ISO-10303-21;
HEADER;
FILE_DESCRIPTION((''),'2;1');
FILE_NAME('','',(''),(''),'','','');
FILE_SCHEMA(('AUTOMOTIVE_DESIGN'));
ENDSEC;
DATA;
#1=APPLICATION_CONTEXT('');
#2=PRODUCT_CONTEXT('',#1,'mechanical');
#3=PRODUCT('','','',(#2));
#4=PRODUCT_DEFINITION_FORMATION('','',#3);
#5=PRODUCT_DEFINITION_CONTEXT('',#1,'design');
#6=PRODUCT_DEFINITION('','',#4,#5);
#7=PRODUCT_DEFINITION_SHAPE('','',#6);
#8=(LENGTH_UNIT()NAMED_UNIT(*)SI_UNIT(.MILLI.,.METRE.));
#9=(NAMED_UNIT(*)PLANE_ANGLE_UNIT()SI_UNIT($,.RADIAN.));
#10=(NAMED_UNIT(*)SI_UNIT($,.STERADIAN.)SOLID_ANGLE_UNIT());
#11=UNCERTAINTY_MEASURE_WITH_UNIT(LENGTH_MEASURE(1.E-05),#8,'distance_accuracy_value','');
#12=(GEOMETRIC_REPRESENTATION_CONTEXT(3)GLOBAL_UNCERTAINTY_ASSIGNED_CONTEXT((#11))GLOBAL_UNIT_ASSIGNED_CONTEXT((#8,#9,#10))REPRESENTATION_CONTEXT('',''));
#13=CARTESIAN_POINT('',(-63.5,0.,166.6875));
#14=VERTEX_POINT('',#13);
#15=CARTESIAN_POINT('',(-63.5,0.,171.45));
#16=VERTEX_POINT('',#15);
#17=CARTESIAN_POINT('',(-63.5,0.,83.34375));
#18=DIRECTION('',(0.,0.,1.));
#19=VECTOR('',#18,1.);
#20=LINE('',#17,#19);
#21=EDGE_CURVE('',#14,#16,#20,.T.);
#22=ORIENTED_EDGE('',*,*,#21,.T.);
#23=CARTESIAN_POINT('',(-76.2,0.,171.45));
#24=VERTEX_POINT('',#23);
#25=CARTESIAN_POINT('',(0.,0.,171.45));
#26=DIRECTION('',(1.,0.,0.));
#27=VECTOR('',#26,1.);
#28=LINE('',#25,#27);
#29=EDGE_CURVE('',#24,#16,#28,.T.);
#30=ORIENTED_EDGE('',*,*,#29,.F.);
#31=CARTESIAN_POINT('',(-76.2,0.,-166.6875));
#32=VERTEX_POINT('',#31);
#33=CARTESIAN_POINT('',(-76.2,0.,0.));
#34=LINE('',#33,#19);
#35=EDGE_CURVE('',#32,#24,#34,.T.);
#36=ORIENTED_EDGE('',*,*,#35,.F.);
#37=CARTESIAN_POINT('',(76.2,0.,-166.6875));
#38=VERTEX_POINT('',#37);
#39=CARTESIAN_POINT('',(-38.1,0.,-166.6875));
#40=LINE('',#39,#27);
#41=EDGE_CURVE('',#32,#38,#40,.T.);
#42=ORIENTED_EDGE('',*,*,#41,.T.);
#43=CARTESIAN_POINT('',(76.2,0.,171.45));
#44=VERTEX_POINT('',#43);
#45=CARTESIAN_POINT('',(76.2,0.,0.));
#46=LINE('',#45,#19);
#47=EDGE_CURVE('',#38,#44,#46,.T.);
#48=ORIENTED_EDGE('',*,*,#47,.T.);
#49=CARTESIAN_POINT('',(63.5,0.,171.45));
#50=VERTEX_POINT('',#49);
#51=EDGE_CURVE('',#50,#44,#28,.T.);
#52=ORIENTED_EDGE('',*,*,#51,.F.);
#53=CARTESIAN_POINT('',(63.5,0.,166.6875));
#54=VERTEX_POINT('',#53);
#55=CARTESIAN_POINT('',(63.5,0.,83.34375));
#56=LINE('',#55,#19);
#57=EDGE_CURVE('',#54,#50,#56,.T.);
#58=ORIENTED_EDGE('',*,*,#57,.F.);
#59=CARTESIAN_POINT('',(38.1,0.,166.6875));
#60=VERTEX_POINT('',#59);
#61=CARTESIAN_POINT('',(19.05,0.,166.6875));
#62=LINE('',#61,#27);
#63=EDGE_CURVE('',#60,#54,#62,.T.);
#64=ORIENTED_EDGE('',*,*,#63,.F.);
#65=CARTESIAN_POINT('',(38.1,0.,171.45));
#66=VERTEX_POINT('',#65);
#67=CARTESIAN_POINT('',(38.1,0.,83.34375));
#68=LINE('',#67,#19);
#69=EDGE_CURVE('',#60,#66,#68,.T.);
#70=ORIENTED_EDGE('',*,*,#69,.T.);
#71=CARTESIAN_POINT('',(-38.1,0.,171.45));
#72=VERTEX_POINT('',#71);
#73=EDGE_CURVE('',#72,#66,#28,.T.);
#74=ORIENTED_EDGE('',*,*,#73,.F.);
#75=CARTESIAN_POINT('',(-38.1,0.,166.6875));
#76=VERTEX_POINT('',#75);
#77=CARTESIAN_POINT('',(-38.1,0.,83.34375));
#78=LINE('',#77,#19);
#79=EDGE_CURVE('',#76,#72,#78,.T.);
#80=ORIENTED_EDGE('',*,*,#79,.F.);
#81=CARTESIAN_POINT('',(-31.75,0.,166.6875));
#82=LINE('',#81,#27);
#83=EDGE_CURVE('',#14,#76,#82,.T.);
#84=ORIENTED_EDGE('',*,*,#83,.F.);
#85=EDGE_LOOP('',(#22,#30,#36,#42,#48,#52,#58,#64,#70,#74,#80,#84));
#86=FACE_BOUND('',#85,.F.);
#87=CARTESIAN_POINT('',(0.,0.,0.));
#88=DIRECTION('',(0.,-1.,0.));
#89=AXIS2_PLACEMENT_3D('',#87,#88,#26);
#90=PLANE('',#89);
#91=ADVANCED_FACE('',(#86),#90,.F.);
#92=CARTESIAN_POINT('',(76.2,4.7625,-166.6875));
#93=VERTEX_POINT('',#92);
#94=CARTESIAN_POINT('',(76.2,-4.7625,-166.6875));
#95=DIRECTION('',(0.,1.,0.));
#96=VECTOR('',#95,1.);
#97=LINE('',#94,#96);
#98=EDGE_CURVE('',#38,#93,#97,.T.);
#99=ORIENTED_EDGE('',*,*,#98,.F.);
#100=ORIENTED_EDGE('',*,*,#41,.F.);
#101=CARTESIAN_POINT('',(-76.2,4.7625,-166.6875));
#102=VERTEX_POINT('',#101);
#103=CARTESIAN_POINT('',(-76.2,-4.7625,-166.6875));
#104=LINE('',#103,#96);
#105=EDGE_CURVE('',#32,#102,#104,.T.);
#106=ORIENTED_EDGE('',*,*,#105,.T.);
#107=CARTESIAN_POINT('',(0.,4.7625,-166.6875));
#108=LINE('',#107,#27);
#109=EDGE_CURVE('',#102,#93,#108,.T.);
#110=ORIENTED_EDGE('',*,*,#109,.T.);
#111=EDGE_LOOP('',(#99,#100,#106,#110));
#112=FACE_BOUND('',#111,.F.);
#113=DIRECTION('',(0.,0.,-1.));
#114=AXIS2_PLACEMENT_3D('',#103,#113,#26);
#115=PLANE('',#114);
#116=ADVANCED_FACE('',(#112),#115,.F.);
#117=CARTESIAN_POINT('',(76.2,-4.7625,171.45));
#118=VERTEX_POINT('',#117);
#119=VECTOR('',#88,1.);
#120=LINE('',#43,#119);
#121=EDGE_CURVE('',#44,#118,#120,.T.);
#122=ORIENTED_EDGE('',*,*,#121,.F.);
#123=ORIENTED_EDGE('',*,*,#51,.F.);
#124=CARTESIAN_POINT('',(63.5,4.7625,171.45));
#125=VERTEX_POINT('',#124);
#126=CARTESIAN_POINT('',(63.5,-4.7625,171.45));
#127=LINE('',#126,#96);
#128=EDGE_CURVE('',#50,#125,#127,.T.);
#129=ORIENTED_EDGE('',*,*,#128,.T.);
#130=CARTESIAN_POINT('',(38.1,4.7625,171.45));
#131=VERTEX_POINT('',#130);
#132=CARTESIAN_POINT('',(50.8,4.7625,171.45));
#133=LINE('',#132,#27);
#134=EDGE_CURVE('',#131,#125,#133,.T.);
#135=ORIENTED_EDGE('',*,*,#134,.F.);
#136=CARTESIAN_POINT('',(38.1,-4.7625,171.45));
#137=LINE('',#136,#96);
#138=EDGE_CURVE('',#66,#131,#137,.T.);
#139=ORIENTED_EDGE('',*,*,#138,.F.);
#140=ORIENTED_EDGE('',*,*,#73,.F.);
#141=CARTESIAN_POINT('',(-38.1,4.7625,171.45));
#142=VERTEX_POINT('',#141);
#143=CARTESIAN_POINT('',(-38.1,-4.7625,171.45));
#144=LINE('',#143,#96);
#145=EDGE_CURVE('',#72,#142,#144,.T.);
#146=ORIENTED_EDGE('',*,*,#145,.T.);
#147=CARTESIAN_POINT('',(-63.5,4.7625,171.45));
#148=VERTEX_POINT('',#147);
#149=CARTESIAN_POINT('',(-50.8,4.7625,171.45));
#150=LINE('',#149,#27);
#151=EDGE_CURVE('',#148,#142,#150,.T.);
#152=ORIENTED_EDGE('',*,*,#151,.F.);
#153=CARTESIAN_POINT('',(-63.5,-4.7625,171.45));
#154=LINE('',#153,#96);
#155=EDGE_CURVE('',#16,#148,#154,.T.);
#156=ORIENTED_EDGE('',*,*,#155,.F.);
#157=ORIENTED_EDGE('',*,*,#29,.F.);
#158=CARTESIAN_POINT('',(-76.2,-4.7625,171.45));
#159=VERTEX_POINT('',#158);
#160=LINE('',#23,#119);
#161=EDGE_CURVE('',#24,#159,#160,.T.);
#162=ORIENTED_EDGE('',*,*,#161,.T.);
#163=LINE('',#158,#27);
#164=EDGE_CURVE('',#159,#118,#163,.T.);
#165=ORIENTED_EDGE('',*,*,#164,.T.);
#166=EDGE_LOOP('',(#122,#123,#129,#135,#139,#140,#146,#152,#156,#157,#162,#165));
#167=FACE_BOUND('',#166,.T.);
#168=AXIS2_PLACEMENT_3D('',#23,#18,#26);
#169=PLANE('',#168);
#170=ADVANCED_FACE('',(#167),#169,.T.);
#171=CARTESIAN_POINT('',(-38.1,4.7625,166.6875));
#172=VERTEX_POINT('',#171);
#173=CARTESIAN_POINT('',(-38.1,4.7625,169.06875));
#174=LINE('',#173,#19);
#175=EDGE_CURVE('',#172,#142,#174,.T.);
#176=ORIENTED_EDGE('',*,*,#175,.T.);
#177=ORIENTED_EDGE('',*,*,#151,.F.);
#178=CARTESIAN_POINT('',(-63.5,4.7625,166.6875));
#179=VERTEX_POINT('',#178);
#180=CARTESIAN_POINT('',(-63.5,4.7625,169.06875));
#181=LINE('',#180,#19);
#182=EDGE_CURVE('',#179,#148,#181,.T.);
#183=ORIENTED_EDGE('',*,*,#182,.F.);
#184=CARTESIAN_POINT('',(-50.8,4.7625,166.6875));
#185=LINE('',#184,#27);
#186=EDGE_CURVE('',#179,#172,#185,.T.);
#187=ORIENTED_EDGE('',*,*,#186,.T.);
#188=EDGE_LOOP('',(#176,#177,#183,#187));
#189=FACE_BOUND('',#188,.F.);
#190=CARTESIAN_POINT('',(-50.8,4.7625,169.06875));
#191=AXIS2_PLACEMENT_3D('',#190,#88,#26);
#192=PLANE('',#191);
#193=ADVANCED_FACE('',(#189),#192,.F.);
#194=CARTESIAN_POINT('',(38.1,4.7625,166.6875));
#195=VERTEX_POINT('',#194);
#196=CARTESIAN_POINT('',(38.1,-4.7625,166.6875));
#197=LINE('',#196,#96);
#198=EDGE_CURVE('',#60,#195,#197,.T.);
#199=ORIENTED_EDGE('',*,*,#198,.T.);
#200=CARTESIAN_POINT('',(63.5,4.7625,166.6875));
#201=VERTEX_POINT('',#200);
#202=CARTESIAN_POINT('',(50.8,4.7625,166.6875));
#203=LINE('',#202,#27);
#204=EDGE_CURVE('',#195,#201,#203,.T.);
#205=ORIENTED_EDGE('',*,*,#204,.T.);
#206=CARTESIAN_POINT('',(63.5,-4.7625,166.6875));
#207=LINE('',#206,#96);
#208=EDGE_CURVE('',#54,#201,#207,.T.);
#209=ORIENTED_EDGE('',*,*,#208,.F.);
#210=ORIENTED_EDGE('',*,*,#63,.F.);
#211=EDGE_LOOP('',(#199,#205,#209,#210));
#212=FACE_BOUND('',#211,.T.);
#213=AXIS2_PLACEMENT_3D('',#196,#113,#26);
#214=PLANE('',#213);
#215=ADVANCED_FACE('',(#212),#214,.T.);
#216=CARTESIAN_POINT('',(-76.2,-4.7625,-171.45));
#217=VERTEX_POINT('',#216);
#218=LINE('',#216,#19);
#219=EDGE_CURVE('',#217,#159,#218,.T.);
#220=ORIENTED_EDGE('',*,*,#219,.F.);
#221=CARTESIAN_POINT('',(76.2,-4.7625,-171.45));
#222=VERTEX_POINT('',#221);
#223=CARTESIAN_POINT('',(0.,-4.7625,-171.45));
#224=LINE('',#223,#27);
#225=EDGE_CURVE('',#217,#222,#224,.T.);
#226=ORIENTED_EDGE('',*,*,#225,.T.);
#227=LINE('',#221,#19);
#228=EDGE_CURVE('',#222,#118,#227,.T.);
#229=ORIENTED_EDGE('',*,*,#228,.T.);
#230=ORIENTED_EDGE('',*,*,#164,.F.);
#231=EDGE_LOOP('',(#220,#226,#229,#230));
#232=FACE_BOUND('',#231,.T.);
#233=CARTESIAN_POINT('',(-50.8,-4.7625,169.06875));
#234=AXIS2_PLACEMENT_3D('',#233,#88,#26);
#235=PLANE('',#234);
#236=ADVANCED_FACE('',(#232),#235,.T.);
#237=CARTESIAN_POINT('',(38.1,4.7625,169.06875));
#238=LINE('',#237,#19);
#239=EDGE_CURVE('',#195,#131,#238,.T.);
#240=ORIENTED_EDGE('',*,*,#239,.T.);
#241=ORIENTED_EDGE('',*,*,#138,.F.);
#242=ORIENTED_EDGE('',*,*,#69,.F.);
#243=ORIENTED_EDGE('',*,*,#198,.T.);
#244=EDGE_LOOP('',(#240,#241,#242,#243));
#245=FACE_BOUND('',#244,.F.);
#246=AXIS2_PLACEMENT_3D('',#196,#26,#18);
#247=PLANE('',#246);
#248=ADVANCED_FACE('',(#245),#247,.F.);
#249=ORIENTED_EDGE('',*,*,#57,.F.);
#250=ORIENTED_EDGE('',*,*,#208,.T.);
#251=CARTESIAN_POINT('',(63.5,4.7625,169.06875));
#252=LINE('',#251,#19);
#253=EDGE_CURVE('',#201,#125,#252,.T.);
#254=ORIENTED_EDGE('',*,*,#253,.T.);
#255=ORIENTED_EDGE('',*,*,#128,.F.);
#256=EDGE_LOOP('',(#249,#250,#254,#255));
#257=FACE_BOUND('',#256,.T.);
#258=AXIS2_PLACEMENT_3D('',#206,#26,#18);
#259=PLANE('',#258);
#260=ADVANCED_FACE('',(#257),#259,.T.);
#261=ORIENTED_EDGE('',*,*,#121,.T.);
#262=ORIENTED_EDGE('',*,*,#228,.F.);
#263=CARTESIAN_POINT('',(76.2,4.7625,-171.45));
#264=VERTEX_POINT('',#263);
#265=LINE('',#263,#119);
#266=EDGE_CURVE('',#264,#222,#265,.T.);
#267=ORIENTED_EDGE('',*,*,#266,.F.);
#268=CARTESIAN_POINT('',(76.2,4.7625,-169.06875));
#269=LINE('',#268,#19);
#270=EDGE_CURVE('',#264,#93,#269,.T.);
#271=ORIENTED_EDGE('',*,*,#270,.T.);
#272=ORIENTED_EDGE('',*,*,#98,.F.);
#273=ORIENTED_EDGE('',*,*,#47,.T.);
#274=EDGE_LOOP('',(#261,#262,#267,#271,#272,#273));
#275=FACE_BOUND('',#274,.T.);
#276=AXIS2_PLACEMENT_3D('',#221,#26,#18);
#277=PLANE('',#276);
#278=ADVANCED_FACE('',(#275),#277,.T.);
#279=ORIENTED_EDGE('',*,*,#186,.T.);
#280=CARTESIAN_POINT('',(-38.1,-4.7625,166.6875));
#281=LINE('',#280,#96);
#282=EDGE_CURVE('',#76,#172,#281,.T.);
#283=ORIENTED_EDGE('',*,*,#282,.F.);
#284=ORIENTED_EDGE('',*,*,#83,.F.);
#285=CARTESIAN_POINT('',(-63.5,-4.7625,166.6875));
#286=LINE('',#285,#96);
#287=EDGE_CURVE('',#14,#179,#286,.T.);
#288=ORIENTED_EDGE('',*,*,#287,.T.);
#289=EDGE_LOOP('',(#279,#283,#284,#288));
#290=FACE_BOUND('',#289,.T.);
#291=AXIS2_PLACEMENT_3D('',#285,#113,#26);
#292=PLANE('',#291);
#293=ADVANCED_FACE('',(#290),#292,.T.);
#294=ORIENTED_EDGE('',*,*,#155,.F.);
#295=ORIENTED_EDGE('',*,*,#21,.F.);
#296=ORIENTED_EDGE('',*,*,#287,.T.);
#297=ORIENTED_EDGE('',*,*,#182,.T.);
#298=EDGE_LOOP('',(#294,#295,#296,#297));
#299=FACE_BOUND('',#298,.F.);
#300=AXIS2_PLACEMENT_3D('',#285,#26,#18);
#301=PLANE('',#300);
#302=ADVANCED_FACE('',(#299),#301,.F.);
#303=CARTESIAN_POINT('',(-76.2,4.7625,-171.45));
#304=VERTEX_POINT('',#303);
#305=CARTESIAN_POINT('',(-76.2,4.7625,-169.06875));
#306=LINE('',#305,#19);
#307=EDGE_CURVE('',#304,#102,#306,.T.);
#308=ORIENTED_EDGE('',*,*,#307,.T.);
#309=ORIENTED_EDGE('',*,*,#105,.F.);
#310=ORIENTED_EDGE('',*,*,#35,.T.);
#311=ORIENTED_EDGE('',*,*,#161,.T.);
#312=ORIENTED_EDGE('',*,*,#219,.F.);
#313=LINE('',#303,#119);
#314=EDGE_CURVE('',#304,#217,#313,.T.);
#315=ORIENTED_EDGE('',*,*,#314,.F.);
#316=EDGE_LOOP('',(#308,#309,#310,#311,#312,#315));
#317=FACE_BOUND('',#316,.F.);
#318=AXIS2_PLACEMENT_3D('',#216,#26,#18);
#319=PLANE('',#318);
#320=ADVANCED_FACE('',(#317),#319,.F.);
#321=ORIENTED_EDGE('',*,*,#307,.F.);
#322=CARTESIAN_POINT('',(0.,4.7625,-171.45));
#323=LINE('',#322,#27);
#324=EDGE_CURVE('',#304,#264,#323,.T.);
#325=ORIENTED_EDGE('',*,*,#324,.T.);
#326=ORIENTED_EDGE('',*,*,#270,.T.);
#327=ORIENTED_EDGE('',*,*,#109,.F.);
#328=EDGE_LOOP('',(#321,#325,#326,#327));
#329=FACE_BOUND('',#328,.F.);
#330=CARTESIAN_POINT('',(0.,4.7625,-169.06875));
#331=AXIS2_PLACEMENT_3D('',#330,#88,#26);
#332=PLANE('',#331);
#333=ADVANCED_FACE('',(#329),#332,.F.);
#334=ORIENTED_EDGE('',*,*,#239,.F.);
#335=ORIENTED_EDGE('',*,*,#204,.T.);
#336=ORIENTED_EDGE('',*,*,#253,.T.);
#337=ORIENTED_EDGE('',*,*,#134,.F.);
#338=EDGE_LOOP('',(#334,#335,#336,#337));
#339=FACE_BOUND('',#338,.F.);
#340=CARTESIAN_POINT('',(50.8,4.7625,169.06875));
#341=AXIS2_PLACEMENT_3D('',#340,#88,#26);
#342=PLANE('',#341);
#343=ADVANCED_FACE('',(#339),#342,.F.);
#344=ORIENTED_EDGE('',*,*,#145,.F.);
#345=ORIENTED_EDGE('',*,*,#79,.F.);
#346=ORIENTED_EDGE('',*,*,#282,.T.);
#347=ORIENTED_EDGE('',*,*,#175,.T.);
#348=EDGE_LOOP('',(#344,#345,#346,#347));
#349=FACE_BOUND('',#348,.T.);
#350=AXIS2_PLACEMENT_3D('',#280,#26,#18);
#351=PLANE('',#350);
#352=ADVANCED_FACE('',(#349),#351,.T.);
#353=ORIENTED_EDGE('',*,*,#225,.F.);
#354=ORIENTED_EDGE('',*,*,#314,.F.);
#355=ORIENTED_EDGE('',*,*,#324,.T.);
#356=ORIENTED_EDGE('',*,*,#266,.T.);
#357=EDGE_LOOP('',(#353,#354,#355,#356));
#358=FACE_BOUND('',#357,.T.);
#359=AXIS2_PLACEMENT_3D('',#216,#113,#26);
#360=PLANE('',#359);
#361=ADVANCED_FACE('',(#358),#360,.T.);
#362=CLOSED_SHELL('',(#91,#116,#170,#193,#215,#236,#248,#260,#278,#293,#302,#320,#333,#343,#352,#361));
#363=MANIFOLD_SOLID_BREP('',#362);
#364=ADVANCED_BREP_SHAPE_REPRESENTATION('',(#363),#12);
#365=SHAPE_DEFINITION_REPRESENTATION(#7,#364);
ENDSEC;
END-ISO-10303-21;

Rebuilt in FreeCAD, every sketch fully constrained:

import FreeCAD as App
import Part
import Sketcher
from FreeCAD import Vector
Q = App.Units.Quantity


def add_polygon(sketch, points):
    """Adds a closed chain of lines whose ends are joined by coincident constraints."""
    first, n = sketch.GeometryCount, len(points)
    for a, b in zip(points, points[1:] + points[:1]):
        sketch.addGeometry(Part.LineSegment(App.Vector(*a, 0), App.Vector(*b, 0)), False)
    for i in range(n):
        sketch.addConstraint(Sketcher.Constraint("Coincident", first + i, 2, first + (i + 1) % n, 1))

doc = App.newDocument("Part")
params = doc.addObject("Spreadsheet::Sheet", "Params")
for row, (alias, value) in enumerate([
    ("sketch1_width", "6 in"),
    ("sketch1_height", "13.5 in"),
    ("pad1_length", "0.1875 in"),
    ("sketch2_width", "1 in"),
    ("sketch2_height", "0.1875 in"),
    ("pad2_length", "0.375 in"),
    ("sketch3_width", "6 in"),
    ("sketch3_height", "0.1875 in"),
    ("pad3_length", "0.375 in"),
], start=1):
    params.set(f"A{row}", alias)
    params.set(f"B{row}", "=" + value)
    params.setAlias(f"B{row}", alias)

body = doc.addObject("PartDesign::Body", "Body")

sketch1 = body.newObject("Sketcher::SketchObject", "Sketch")
sketch1.AttachmentSupport = (doc.getObject("XZ_Plane"), [""])
sketch1.MapMode = "FlatFace"
add_polygon(sketch1, [(-76.2, 171.45), (-76.2, -171.45), (76.2, -171.45), (76.2, 171.45)])
sketch1.addConstraint([
    Sketcher.Constraint("Vertical", 0),
    Sketcher.Constraint("Horizontal", 1),
    Sketcher.Constraint("Vertical", 2),
    Sketcher.Constraint("Horizontal", 3),
    Sketcher.Constraint("Symmetric", 0, 2, 2, 2, -1, 1),
    Sketcher.Constraint("DistanceX", 1, 1, 1, 2, Q("6 in")),
    Sketcher.Constraint("DistanceY", 0, 2, 0, 1, Q("13.5 in")),
])
sketch1.setExpression("Constraints[9]", "Params.sketch1_width")
sketch1.setExpression("Constraints[10]", "Params.sketch1_height")
pad1 = body.newObject("PartDesign::Pad", "Pad")
pad1.Profile = sketch1
pad1.setExpression("Length", "Params.pad1_length")

sketch2 = body.newObject("Sketcher::SketchObject", "Sketch001")
sketch2.AttachmentSupport = (doc.getObject("XZ_Plane"), [""])
sketch2.MapMode = "FlatFace"
sketch2.AttachmentOffset = App.Placement(Vector(0, 0, 0.1875 * 25.4), App.Rotation())
add_polygon(sketch2, [(-63.5, 171.45), (-63.5, 166.6875), (-38.1, 166.6875), (-38.1, 171.45)])
add_polygon(sketch2, [(38.1, 171.45), (38.1, 166.6875), (63.5, 166.6875), (63.5, 171.45)])
sketch2.addConstraint([
    Sketcher.Constraint("Vertical", 0),
    Sketcher.Constraint("Horizontal", 1),
    Sketcher.Constraint("Vertical", 2),
    Sketcher.Constraint("Horizontal", 3),
    Sketcher.Constraint("Vertical", 4),
    Sketcher.Constraint("Horizontal", 5),
    Sketcher.Constraint("Vertical", 6),
    Sketcher.Constraint("Horizontal", 7),
    Sketcher.Constraint("Symmetric", 1, 2, 4, 2, -2),
    Sketcher.Constraint("Symmetric", 3, 2, 6, 2, -2),
    Sketcher.Constraint("DistanceX", 1, 1, 1, 2, Q("1 in")),
    Sketcher.Constraint("DistanceX", 1, 2, 4, 2, Q("3 in")),
    Sketcher.Constraint("DistanceY", 0, 2, 0, 1, Q("0.1875 in")),
    Sketcher.Constraint("DistanceY", -1, 1, 2, 2, Q("6.75 in")),
])
sketch2.setExpression("Constraints[18]", "Params.sketch2_width")
sketch2.setExpression("Constraints[20]", "Params.sketch2_height")
pad2 = body.newObject("PartDesign::Pad", "Pad001")
pad2.Profile = sketch2
pad2.setExpression("Length", "Params.pad2_length")
pad2.Reversed = True

sketch3 = body.newObject("Sketcher::SketchObject", "Sketch002")
sketch3.AttachmentSupport = (doc.getObject("XZ_Plane"), [""])
sketch3.MapMode = "FlatFace"
sketch3.AttachmentOffset = App.Placement(Vector(0, 0, 0.1875 * 25.4), App.Rotation())
add_polygon(sketch3, [(-76.2, -166.6875), (-76.2, -171.45), (76.2, -171.45), (76.2, -166.6875)])
sketch3.addConstraint([
    Sketcher.Constraint("Vertical", 0),
    Sketcher.Constraint("Horizontal", 1),
    Sketcher.Constraint("Vertical", 2),
    Sketcher.Constraint("Horizontal", 3),
    Sketcher.Constraint("DistanceX", 1, 1, 1, 2, Q("6 in")),
    Sketcher.Constraint("DistanceX", 0, 2, -1, 1, Q("3 in")),
    Sketcher.Constraint("DistanceY", 0, 2, 0, 1, Q("0.1875 in")),
    Sketcher.Constraint("DistanceY", 0, 2, -1, 1, Q("6.75 in")),
])
sketch3.setExpression("Constraints[8]", "Params.sketch3_width")
sketch3.setExpression("Constraints[10]", "Params.sketch3_height")
pad3 = body.newObject("PartDesign::Pad", "Pad002")
pad3.Profile = sketch3
pad3.setExpression("Length", "Params.pad3_length")
pad3.Reversed = True

doc.recompute()
